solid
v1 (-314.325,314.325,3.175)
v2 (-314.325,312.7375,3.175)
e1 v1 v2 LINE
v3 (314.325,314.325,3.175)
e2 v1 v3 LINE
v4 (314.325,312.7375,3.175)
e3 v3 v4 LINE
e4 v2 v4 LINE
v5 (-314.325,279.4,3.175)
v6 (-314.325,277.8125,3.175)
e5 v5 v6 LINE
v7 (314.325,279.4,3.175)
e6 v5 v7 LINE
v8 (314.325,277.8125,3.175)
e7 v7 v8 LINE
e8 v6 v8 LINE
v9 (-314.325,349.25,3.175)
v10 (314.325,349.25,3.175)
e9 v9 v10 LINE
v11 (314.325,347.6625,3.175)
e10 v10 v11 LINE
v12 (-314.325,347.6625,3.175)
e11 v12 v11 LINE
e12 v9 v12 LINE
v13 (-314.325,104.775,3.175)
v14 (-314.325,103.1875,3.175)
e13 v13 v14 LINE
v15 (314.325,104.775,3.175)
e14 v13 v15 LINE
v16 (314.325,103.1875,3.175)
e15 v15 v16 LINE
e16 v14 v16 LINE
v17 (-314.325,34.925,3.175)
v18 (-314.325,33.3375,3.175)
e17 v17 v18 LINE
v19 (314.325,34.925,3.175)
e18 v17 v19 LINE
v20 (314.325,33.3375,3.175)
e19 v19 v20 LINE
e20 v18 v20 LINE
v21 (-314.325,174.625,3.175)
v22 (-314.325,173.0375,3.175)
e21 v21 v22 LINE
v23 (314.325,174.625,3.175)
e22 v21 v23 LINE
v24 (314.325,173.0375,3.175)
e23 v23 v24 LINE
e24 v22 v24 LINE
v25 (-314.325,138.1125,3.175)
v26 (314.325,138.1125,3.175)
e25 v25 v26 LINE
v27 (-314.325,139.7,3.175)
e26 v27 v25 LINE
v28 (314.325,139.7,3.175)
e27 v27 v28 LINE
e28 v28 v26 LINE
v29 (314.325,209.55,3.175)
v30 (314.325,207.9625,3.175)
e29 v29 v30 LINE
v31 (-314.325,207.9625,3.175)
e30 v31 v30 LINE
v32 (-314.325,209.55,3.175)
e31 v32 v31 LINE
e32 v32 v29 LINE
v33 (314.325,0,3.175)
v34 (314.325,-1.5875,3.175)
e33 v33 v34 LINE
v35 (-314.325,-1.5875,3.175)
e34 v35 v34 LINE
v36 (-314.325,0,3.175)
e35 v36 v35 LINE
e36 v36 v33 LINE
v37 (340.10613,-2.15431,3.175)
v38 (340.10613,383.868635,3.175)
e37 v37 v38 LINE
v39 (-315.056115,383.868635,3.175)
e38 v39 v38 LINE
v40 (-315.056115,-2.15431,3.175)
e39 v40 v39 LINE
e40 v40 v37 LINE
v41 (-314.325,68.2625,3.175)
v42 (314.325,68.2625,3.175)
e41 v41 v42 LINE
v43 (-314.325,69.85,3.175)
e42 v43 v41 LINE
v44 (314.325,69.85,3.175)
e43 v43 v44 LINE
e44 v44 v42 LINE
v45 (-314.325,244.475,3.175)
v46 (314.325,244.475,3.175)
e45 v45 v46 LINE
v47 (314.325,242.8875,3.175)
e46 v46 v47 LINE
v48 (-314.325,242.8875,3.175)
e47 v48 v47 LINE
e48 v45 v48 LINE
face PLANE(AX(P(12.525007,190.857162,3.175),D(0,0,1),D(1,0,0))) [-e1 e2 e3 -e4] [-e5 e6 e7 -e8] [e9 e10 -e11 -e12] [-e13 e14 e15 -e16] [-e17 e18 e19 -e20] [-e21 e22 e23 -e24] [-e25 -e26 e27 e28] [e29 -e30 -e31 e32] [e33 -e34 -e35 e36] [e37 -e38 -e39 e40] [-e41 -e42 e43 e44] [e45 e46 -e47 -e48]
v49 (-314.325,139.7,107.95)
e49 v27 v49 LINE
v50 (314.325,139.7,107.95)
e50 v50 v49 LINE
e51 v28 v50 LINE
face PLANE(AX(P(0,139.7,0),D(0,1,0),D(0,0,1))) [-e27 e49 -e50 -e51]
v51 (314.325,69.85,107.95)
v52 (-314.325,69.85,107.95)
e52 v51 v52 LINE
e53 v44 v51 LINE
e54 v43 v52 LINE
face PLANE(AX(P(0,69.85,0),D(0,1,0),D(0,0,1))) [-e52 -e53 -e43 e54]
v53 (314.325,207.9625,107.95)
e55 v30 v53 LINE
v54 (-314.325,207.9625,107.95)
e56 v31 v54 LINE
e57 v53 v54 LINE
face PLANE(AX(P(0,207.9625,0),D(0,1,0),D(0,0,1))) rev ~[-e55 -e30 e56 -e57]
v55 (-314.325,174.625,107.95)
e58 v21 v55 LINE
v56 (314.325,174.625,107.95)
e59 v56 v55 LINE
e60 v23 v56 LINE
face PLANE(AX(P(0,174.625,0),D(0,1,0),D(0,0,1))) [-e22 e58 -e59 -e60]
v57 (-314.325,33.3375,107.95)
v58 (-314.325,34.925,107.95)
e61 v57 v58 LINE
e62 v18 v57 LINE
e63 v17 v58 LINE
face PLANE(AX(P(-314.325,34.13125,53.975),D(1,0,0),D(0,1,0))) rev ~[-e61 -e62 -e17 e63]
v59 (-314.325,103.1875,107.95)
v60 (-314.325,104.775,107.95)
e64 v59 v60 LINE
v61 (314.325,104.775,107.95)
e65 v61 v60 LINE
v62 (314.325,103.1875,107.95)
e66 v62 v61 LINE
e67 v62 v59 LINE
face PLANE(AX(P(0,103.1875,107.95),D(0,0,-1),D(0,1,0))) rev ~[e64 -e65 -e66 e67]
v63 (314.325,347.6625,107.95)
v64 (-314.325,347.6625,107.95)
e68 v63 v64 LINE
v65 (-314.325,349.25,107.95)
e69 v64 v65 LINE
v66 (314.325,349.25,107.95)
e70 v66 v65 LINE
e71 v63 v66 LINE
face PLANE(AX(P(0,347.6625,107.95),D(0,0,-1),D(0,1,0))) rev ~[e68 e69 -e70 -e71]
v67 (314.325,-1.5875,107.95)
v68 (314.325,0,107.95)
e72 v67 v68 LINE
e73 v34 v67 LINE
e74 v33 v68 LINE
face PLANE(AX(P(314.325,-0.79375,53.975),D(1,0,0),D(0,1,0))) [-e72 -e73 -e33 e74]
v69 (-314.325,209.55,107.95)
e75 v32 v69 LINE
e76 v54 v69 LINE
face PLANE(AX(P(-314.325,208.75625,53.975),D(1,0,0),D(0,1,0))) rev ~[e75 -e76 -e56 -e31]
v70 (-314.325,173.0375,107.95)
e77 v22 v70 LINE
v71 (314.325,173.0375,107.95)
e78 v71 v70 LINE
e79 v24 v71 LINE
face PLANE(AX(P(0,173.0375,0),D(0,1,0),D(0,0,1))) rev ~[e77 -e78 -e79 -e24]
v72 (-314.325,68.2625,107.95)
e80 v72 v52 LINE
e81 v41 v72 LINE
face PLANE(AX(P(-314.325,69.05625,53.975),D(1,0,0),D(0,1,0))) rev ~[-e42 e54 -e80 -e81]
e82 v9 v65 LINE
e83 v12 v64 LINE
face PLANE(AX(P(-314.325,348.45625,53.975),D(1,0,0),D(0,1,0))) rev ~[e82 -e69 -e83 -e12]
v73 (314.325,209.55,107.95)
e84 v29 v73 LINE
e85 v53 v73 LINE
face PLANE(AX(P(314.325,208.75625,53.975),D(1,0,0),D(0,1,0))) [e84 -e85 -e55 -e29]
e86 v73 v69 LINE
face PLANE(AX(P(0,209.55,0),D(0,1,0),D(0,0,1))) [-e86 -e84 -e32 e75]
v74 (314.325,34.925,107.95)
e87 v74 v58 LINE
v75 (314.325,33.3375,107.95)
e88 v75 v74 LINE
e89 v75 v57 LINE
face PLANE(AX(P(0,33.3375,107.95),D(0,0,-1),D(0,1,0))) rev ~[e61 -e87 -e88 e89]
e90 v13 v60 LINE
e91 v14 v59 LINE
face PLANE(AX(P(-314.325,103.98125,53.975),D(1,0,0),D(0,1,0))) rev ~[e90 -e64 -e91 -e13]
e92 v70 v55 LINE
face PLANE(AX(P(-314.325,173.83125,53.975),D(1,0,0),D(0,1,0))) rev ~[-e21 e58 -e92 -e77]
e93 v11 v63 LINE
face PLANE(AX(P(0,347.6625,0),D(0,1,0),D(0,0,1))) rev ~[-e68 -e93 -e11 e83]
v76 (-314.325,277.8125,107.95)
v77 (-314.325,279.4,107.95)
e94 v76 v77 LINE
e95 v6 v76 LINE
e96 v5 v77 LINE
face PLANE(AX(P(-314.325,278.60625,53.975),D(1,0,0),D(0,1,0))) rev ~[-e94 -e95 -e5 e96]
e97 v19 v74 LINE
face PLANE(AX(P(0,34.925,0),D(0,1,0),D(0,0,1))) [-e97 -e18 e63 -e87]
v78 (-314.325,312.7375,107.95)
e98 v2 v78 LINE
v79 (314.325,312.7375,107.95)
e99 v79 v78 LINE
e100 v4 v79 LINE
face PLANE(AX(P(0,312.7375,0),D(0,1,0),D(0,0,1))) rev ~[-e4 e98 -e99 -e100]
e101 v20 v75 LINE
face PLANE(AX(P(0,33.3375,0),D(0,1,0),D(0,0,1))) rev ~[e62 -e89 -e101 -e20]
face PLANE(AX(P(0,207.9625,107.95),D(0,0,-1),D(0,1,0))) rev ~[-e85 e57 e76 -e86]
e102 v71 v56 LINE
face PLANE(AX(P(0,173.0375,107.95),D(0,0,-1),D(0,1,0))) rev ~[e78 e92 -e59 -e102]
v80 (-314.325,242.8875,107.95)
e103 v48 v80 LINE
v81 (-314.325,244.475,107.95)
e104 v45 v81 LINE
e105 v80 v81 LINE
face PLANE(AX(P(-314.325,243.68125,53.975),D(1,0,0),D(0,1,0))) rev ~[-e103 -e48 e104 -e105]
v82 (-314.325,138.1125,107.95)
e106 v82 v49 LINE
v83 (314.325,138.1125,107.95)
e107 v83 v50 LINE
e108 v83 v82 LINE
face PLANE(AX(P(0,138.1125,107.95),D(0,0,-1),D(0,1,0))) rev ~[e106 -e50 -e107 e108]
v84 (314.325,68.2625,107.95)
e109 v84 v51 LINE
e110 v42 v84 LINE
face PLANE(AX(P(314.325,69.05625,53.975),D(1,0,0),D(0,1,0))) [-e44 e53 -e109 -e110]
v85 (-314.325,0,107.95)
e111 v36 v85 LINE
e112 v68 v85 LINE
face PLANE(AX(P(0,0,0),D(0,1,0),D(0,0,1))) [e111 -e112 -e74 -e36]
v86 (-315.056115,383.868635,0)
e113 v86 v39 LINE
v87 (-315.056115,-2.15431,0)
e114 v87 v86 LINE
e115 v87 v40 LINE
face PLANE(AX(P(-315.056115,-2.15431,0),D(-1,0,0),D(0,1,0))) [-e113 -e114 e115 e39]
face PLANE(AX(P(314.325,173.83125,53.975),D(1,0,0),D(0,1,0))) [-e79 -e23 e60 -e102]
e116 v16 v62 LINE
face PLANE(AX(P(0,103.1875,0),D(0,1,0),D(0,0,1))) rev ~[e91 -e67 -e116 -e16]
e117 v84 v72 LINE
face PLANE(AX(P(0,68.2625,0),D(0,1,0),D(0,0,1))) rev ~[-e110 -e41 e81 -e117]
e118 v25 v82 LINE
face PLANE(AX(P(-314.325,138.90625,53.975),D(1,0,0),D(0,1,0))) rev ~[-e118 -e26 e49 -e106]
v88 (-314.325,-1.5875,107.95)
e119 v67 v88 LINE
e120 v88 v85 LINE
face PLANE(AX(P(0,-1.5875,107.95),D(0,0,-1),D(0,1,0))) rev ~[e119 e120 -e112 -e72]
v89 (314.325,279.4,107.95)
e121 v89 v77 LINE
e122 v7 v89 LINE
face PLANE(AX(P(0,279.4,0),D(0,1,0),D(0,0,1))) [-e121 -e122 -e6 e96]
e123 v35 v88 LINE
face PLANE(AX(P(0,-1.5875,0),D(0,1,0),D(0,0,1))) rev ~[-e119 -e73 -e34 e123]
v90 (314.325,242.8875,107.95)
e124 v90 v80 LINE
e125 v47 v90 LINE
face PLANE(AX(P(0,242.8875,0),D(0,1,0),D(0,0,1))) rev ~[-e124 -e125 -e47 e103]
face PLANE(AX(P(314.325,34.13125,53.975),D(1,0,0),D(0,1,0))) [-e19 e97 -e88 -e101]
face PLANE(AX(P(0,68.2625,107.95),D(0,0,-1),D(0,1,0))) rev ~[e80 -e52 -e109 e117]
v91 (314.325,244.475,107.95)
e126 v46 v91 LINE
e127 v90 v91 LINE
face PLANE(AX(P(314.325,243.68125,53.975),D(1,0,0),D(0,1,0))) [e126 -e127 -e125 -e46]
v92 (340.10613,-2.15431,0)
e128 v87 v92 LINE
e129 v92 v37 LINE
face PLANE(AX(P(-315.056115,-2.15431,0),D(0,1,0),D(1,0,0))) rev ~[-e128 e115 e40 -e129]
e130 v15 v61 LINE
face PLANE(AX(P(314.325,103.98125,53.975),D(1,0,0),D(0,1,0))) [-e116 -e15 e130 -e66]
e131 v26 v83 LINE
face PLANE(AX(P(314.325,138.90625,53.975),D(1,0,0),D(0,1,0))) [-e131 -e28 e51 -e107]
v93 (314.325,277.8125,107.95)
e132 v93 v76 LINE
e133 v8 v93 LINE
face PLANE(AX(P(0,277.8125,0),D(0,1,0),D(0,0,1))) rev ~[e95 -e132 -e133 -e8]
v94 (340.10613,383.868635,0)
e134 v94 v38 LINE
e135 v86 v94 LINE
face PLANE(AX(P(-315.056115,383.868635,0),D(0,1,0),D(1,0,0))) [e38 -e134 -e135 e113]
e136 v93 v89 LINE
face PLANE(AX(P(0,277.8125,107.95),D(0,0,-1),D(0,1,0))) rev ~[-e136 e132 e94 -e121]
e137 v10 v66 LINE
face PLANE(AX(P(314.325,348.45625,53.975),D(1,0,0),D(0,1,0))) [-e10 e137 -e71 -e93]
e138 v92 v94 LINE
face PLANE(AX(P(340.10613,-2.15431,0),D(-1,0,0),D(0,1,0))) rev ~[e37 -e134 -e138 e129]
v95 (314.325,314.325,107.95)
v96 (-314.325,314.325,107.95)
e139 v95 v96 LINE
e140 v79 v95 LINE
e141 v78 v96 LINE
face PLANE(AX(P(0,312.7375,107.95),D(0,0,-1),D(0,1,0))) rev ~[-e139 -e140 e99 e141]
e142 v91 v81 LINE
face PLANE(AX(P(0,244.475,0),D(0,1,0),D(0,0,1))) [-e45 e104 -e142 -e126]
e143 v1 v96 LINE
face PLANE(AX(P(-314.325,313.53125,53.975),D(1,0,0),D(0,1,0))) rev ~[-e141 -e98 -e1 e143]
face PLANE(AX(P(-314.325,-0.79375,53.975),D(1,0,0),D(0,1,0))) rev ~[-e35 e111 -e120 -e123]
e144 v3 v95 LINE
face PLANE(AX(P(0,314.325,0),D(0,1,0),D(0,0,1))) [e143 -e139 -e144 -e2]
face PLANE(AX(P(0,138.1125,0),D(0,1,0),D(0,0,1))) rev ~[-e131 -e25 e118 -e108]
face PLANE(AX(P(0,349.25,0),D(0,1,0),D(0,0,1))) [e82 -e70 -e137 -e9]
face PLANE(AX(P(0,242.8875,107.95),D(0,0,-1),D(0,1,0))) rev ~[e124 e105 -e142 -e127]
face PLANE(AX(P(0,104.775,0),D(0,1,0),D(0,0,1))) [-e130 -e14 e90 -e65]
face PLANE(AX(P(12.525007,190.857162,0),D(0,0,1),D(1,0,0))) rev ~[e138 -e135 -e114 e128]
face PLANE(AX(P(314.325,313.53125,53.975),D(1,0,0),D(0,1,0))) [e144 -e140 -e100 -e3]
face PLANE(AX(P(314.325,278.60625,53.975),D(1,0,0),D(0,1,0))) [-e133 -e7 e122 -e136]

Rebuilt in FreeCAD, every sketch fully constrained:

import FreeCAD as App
import Part
import Sketcher
from FreeCAD import Vector
Q = App.Units.Quantity


def add_polygon(sketch, points):
    """Adds a closed chain of lines whose ends are joined by coincident constraints."""
    first, n = sketch.GeometryCount, len(points)
    for a, b in zip(points, points[1:] + points[:1]):
        sketch.addGeometry(Part.LineSegment(App.Vector(*a, 0), App.Vector(*b, 0)), False)
    for i in range(n):
        sketch.addConstraint(Sketcher.Constraint("Coincident", first + i, 2, first + (i + 1) % n, 1))

doc = App.newDocument("Part")
body = doc.addObject("PartDesign::Body", "Body")

sketch1 = body.newObject("Sketcher::SketchObject", "Sketch")
sketch1.AttachmentSupport = (doc.getObject("YZ_Plane"), [""])
sketch1.MapMode = "FlatFace"
add_polygon(sketch1, [(347.7, 108), (347.7, 0), (349.2, 0), (349.2, 108)])
sketch1.addConstraint(Sketcher.Constraint("Vertical", 0))
sketch1.addConstraint(Sketcher.Constraint("Horizontal", 1))
sketch1.addConstraint(Sketcher.Constraint("Vertical", 2))
sketch1.addConstraint(Sketcher.Constraint("Horizontal", 3))
sketch1.addConstraint(Sketcher.Constraint("PointOnObject", 0, 2, -1))
sketch1.addConstraint(Sketcher.Constraint("DistanceY", 0, 2, 0, 1, Q("4.25 in")))
sketch1.addConstraint(Sketcher.Constraint("DistanceX", 1, 1, 1, 2, Q("0.0625 in")))
sketch1.addConstraint(Sketcher.Constraint("DistanceX", -1, 1, 1, 2, Q("13.75 in")))
pad1 = body.newObject("PartDesign::Pad", "Pad")
pad1.Profile = sketch1
pad1.Length = Q("24.75 in")
pad1.Midplane = True
body2 = doc.addObject("PartDesign::Body", "Body001")

sketch2 = body2.newObject("Sketcher::SketchObject", "Sketch001")
sketch2.AttachmentSupport = (doc.getObject("YZ_Plane001"), [""])
sketch2.MapMode = "FlatFace"
add_polygon(sketch2, [(312.7, 108), (312.7, 0), (314.3, 0), (314.3, 108)])
sketch2.addConstraint(Sketcher.Constraint("Vertical", 0))
sketch2.addConstraint(Sketcher.Constraint("Horizontal", 1))
sketch2.addConstraint(Sketcher.Constraint("Vertical", 2))
sketch2.addConstraint(Sketcher.Constraint("Horizontal", 3))
sketch2.addConstraint(Sketcher.Constraint("PointOnObject", 0, 2, -1))
sketch2.addConstraint(Sketcher.Constraint("DistanceY", 0, 2, 0, 1, Q("4.25 in")))
sketch2.addConstraint(Sketcher.Constraint("DistanceX", 1, 1, 1, 2, Q("0.0625 in")))
sketch2.addConstraint(Sketcher.Constraint("DistanceX", -1, 1, 0, 2, Q("12.3125 in")))
pad2 = body2.newObject("PartDesign::Pad", "Pad001")
pad2.Profile = sketch2
pad2.Length = Q("24.75 in")
pad2.Midplane = True
body3 = doc.addObject("PartDesign::Body", "Body002")

sketch3 = body3.newObject("Sketcher::SketchObject", "Sketch002")
sketch3.AttachmentSupport = (doc.getObject("YZ_Plane002"), [""])
sketch3.MapMode = "FlatFace"
add_polygon(sketch3, [(277.8, 108), (277.8, 0), (279.4, 0), (279.4, 108)])
sketch3.addConstraint(Sketcher.Constraint("Vertical", 0))
sketch3.addConstraint(Sketcher.Constraint("Horizontal", 1))
sketch3.addConstraint(Sketcher.Constraint("Vertical", 2))
sketch3.addConstraint(Sketcher.Constraint("Horizontal", 3))
sketch3.addConstraint(Sketcher.Constraint("PointOnObject", 0, 2, -1))
sketch3.addConstraint(Sketcher.Constraint("DistanceX", -1, 1, 1, 2, Q("11 in")))
sketch3.addConstraint(Sketcher.Constraint("DistanceY", 0, 2, 0, 1, Q("4.25 in")))
sketch3.addConstraint(Sketcher.Constraint("DistanceX", 1, 1, 1, 2, Q("0.0625 in")))
pad3 = body3.newObject("PartDesign::Pad", "Pad002")
pad3.Profile = sketch3
pad3.Length = Q("24.75 in")
pad3.Midplane = True
body4 = doc.addObject("PartDesign::Body", "Body003")

sketch4 = body4.newObject("Sketcher::SketchObject", "Sketch003")
sketch4.AttachmentSupport = (doc.getObject("YZ_Plane003"), [""])
sketch4.MapMode = "FlatFace"
add_polygon(sketch4, [(242.9, 108), (242.9, 0), (244.5, 0), (244.5, 108)])
sketch4.addConstraint(Sketcher.Constraint("Vertical", 0))
sketch4.addConstraint(Sketcher.Constraint("Horizontal", 1))
sketch4.addConstraint(Sketcher.Constraint("Vertical", 2))
sketch4.addConstraint(Sketcher.Constraint("Horizontal", 3))
sketch4.addConstraint(Sketcher.Constraint("PointOnObject", 0, 2, -1))
sketch4.addConstraint(Sketcher.Constraint("DistanceY", 0, 2, 0, 1, Q("4.25 in")))
sketch4.addConstraint(Sketcher.Constraint("DistanceX", 1, 1, 1, 2, Q("0.0625 in")))
sketch4.addConstraint(Sketcher.Constraint("DistanceX", -1, 1, 0, 2, Q("9.5625 in")))
pad4 = body4.newObject("PartDesign::Pad", "Pad003")
pad4.Profile = sketch4
pad4.Length = Q("24.75 in")
pad4.Midplane = True
body5 = doc.addObject("PartDesign::Body", "Body004")

sketch5 = body5.newObject("Sketcher::SketchObject", "Sketch004")
sketch5.AttachmentSupport = (doc.getObject("YZ_Plane004"), [""])
sketch5.MapMode = "FlatFace"
add_polygon(sketch5, [(208, 108), (208, 0), (209.6, 0), (209.6, 108)])
sketch5.addConstraint(Sketcher.Constraint("Vertical", 0))
sketch5.addConstraint(Sketcher.Constraint("Horizontal", 1))
sketch5.addConstraint(Sketcher.Constraint("Vertical", 2))
sketch5.addConstraint(Sketcher.Constraint("Horizontal", 3))
sketch5.addConstraint(Sketcher.Constraint("PointOnObject", 0, 2, -1))
sketch5.addConstraint(Sketcher.Constraint("DistanceY", 0, 2, 0, 1, Q("4.25 in")))
sketch5.addConstraint(Sketcher.Constraint("DistanceX", 1, 1, 1, 2, Q("0.0625 in")))
sketch5.addConstraint(Sketcher.Constraint("DistanceX", -1, 1, 1, 2, Q("8.25 in")))
pad5 = body5.newObject("PartDesign::Pad", "Pad004")
pad5.Profile = sketch5
pad5.Length = Q("24.75 in")
pad5.Midplane = True
body6 = doc.addObject("PartDesign::Body", "Body005")

sketch6 = body6.newObject("Sketcher::SketchObject", "Sketch005")
sketch6.AttachmentSupport = (doc.getObject("YZ_Plane005"), [""])
sketch6.MapMode = "FlatFace"
add_polygon(sketch6, [(173, 108), (173, 0), (174.6, 0), (174.6, 108)])
sketch6.addConstraint(Sketcher.Constraint("Vertical", 0))
sketch6.addConstraint(Sketcher.Constraint("Horizontal", 1))
sketch6.addConstraint(Sketcher.Constraint("Vertical", 2))
sketch6.addConstraint(Sketcher.Constraint("Horizontal", 3))
sketch6.addConstraint(Sketcher.Constraint("PointOnObject", 0, 2, -1))
sketch6.addConstraint(Sketcher.Constraint("DistanceY", 0, 2, 0, 1, Q("4.25 in")))
sketch6.addConstraint(Sketcher.Constraint("DistanceX", 1, 1, 1, 2, Q("0.0625 in")))
sketch6.addConstraint(Sketcher.Constraint("DistanceX", -1, 1, 0, 2, Q("6.8125 in")))
pad6 = body6.newObject("PartDesign::Pad", "Pad005")
pad6.Profile = sketch6
pad6.Length = Q("24.75 in")
pad6.Midplane = True
body7 = doc.addObject("PartDesign::Body", "Body006")

sketch7 = body7.newObject("Sketcher::SketchObject", "Sketch006")
sketch7.AttachmentSupport = (doc.getObject("YZ_Plane006"), [""])
sketch7.MapMode = "FlatFace"
add_polygon(sketch7, [(138.1, 108), (138.1, 0), (139.7, 0), (139.7, 108)])
sketch7.addConstraint(Sketcher.Constraint("Vertical", 0))
sketch7.addConstraint(Sketcher.Constraint("Horizontal", 1))
sketch7.addConstraint(Sketcher.Constraint("Vertical", 2))
sketch7.addConstraint(Sketcher.Constraint("Horizontal", 3))
sketch7.addConstraint(Sketcher.Constraint("PointOnObject", 0, 2, -1))
sketch7.addConstraint(Sketcher.Constraint("DistanceY", 0, 2, 0, 1, Q("4.25 in")))
sketch7.addConstraint(Sketcher.Constraint("DistanceX", -1, 1, 1, 2, Q("5.5 in")))
sketch7.addConstraint(Sketcher.Constraint("DistanceX", 1, 1, 1, 2, Q("0.0625 in")))
pad7 = body7.newObject("PartDesign::Pad", "Pad006")
pad7.Profile = sketch7
pad7.Length = Q("24.75 in")
pad7.Midplane = True
body8 = doc.addObject("PartDesign::Body", "Body007")

sketch8 = body8.newObject("Sketcher::SketchObject", "Sketch007")
sketch8.AttachmentSupport = (doc.getObject("YZ_Plane007"), [""])
sketch8.MapMode = "FlatFace"
add_polygon(sketch8, [(103.2, 108), (103.2, 0), (104.8, 0), (104.8, 108)])
sketch8.addConstraint(Sketcher.Constraint("Vertical", 0))
sketch8.addConstraint(Sketcher.Constraint("Horizontal", 1))
sketch8.addConstraint(Sketcher.Constraint("Vertical", 2))
sketch8.addConstraint(Sketcher.Constraint("Horizontal", 3))
sketch8.addConstraint(Sketcher.Constraint("PointOnObject", 0, 2, -1))
sketch8.addConstraint(Sketcher.Constraint("DistanceY", 0, 2, 0, 1, Q("4.25 in")))
sketch8.addConstraint(Sketcher.Constraint("DistanceX", 1, 1, 1, 2, Q("0.0625 in")))
sketch8.addConstraint(Sketcher.Constraint("DistanceX", -1, 1, 0, 2, Q("4.0625 in")))
pad8 = body8.newObject("PartDesign::Pad", "Pad007")
pad8.Profile = sketch8
pad8.Length = Q("24.75 in")
pad8.Midplane = True
body9 = doc.addObject("PartDesign::Body", "Body008")

sketch9 = body9.newObject("Sketcher::SketchObject", "Sketch008")
sketch9.AttachmentSupport = (doc.getObject("YZ_Plane008"), [""])
sketch9.MapMode = "FlatFace"
add_polygon(sketch9, [(68.3, 108), (68.3, 0), (69.8, 0), (69.8, 108)])
sketch9.addConstraint(Sketcher.Constraint("Vertical", 0))
sketch9.addConstraint(Sketcher.Constraint("Horizontal", 1))
sketch9.addConstraint(Sketcher.Constraint("Vertical", 2))
sketch9.addConstraint(Sketcher.Constraint("Horizontal", 3))
sketch9.addConstraint(Sketcher.Constraint("PointOnObject", 0, 2, -1))
sketch9.addConstraint(Sketcher.Constraint("DistanceY", 0, 2, 0, 1, Q("4.25 in")))
sketch9.addConstraint(Sketcher.Constraint("DistanceX", 1, 1, 1, 2, Q("0.0625 in")))
sketch9.addConstraint(Sketcher.Constraint("DistanceX", -1, 1, 1, 2, Q("2.75 in")))
pad9 = body9.newObject("PartDesign::Pad", "Pad008")
pad9.Profile = sketch9
pad9.Length = Q("24.75 in")
pad9.Midplane = True
body10 = doc.addObject("PartDesign::Body", "Body009")

sketch10 = body10.newObject("Sketcher::SketchObject", "Sketch009")
sketch10.AttachmentSupport = (doc.getObject("YZ_Plane009"), [""])
sketch10.MapMode = "FlatFace"
add_polygon(sketch10, [(33.3, 108), (33.3, 0), (34.9, 0), (34.9, 108)])
sketch10.addConstraint(Sketcher.Constraint("Vertical", 0))
sketch10.addConstraint(Sketcher.Constraint("Horizontal", 1))
sketch10.addConstraint(Sketcher.Constraint("Vertical", 2))
sketch10.addConstraint(Sketcher.Constraint("Horizontal", 3))
sketch10.addConstraint(Sketcher.Constraint("PointOnObject", 0, 2, -1))
sketch10.addConstraint(Sketcher.Constraint("DistanceY", 0, 2, 0, 1, Q("4.25 in")))
sketch10.addConstraint(Sketcher.Constraint("DistanceX", 1, 1, 1, 2, Q("0.0625 in")))
sketch10.addConstraint(Sketcher.Constraint("DistanceX", -1, 1, 0, 2, Q("1.3125 in")))
pad10 = body10.newObject("PartDesign::Pad", "Pad009")
pad10.Profile = sketch10
pad10.Length = Q("24.75 in")
pad10.Midplane = True
body11 = doc.addObject("PartDesign::Body", "Body010")

sketch11 = body11.newObject("Sketcher::SketchObject", "Sketch010")
sketch11.AttachmentSupport = (doc.getObject("YZ_Plane010"), [""])
sketch11.MapMode = "FlatFace"
add_polygon(sketch11, [(-1.6, 108), (-1.6, 0), (0, 0), (0, 108)])
sketch11.addConstraint(Sketcher.Constraint("Vertical", 0))
sketch11.addConstraint(Sketcher.Constraint("Horizontal", 1))
sketch11.addConstraint(Sketcher.Constraint("Vertical", 2))
sketch11.addConstraint(Sketcher.Constraint("Horizontal", 3))
sketch11.addConstraint(Sketcher.Constraint("Coincident", 1, 2, -1, 1))
sketch11.addConstraint(Sketcher.Constraint("DistanceY", 0, 2, 0, 1, Q("4.25 in")))
sketch11.addConstraint(Sketcher.Constraint("DistanceX", 1, 1, 1, 2, Q("0.0625 in")))
pad11 = body11.newObject("PartDesign::Pad", "Pad010")
pad11.Profile = sketch11
pad11.Length = Q("24.75 in")
pad11.Midplane = True
body.AllowCompound = True
doc.recompute()

boolean = body.newObject("PartDesign::Boolean", "Boolean")
boolean.Type = "Fuse"
boolean.addObjects([body2])
doc.recompute()

boolean2 = body.newObject("PartDesign::Boolean", "Boolean001")
boolean2.Type = "Fuse"
boolean2.addObjects([body3])
doc.recompute()

boolean3 = body.newObject("PartDesign::Boolean", "Boolean002")
boolean3.Type = "Fuse"
boolean3.addObjects([body4])
doc.recompute()

boolean4 = body.newObject("PartDesign::Boolean", "Boolean003")
boolean4.Type = "Fuse"
boolean4.addObjects([body5])
doc.recompute()

boolean5 = body.newObject("PartDesign::Boolean", "Boolean004")
boolean5.Type = "Fuse"
boolean5.addObjects([body6])
doc.recompute()

boolean6 = body.newObject("PartDesign::Boolean", "Boolean005")
boolean6.Type = "Fuse"
boolean6.addObjects([body7])
doc.recompute()

boolean7 = body.newObject("PartDesign::Boolean", "Boolean006")
boolean7.Type = "Fuse"
boolean7.addObjects([body8])
doc.recompute()

boolean8 = body.newObject("PartDesign::Boolean", "Boolean007")
boolean8.Type = "Fuse"
boolean8.addObjects([body9])
doc.recompute()

boolean9 = body.newObject("PartDesign::Boolean", "Boolean008")
boolean9.Type = "Fuse"
boolean9.addObjects([body10])
doc.recompute()

boolean10 = body.newObject("PartDesign::Boolean", "Boolean009")
boolean10.Type = "Fuse"
boolean10.addObjects([body11])

sketch12 = body.newObject("Sketcher::SketchObject", "Sketch011")
sketch12.AttachmentSupport = (doc.getObject("XY_Plane"), [""])
sketch12.MapMode = "FlatFace"
add_polygon(sketch12, [(-315, 384), (-315, -2), (340, -2), (340, 384)])
sketch12.addConstraint(Sketcher.Constraint("Vertical", 0))
sketch12.addConstraint(Sketcher.Constraint("Horizontal", 1))
sketch12.addConstraint(Sketcher.Constraint("Vertical", 2))
sketch12.addConstraint(Sketcher.Constraint("Horizontal", 3))
sketch12.addConstraint(Sketcher.Constraint("DistanceX", 1, 1, 1, 2, Q("655.162245 mm")))
sketch12.addConstraint(Sketcher.Constraint("DistanceY", 0, 2, 0, 1, Q("386.022945 mm")))
sketch12.addConstraint(Sketcher.Constraint("DistanceY", 0, 2, -1, 1, Q("2.15431 mm")))
sketch12.addConstraint(Sketcher.Constraint("DistanceX", -1, 1, 1, 2, Q("340.10613 mm")))
pad12 = body.newObject("PartDesign::Pad", "Pad011")
pad12.Profile = sketch12
pad12.Length = Q("0.125 in")

doc.recompute()
